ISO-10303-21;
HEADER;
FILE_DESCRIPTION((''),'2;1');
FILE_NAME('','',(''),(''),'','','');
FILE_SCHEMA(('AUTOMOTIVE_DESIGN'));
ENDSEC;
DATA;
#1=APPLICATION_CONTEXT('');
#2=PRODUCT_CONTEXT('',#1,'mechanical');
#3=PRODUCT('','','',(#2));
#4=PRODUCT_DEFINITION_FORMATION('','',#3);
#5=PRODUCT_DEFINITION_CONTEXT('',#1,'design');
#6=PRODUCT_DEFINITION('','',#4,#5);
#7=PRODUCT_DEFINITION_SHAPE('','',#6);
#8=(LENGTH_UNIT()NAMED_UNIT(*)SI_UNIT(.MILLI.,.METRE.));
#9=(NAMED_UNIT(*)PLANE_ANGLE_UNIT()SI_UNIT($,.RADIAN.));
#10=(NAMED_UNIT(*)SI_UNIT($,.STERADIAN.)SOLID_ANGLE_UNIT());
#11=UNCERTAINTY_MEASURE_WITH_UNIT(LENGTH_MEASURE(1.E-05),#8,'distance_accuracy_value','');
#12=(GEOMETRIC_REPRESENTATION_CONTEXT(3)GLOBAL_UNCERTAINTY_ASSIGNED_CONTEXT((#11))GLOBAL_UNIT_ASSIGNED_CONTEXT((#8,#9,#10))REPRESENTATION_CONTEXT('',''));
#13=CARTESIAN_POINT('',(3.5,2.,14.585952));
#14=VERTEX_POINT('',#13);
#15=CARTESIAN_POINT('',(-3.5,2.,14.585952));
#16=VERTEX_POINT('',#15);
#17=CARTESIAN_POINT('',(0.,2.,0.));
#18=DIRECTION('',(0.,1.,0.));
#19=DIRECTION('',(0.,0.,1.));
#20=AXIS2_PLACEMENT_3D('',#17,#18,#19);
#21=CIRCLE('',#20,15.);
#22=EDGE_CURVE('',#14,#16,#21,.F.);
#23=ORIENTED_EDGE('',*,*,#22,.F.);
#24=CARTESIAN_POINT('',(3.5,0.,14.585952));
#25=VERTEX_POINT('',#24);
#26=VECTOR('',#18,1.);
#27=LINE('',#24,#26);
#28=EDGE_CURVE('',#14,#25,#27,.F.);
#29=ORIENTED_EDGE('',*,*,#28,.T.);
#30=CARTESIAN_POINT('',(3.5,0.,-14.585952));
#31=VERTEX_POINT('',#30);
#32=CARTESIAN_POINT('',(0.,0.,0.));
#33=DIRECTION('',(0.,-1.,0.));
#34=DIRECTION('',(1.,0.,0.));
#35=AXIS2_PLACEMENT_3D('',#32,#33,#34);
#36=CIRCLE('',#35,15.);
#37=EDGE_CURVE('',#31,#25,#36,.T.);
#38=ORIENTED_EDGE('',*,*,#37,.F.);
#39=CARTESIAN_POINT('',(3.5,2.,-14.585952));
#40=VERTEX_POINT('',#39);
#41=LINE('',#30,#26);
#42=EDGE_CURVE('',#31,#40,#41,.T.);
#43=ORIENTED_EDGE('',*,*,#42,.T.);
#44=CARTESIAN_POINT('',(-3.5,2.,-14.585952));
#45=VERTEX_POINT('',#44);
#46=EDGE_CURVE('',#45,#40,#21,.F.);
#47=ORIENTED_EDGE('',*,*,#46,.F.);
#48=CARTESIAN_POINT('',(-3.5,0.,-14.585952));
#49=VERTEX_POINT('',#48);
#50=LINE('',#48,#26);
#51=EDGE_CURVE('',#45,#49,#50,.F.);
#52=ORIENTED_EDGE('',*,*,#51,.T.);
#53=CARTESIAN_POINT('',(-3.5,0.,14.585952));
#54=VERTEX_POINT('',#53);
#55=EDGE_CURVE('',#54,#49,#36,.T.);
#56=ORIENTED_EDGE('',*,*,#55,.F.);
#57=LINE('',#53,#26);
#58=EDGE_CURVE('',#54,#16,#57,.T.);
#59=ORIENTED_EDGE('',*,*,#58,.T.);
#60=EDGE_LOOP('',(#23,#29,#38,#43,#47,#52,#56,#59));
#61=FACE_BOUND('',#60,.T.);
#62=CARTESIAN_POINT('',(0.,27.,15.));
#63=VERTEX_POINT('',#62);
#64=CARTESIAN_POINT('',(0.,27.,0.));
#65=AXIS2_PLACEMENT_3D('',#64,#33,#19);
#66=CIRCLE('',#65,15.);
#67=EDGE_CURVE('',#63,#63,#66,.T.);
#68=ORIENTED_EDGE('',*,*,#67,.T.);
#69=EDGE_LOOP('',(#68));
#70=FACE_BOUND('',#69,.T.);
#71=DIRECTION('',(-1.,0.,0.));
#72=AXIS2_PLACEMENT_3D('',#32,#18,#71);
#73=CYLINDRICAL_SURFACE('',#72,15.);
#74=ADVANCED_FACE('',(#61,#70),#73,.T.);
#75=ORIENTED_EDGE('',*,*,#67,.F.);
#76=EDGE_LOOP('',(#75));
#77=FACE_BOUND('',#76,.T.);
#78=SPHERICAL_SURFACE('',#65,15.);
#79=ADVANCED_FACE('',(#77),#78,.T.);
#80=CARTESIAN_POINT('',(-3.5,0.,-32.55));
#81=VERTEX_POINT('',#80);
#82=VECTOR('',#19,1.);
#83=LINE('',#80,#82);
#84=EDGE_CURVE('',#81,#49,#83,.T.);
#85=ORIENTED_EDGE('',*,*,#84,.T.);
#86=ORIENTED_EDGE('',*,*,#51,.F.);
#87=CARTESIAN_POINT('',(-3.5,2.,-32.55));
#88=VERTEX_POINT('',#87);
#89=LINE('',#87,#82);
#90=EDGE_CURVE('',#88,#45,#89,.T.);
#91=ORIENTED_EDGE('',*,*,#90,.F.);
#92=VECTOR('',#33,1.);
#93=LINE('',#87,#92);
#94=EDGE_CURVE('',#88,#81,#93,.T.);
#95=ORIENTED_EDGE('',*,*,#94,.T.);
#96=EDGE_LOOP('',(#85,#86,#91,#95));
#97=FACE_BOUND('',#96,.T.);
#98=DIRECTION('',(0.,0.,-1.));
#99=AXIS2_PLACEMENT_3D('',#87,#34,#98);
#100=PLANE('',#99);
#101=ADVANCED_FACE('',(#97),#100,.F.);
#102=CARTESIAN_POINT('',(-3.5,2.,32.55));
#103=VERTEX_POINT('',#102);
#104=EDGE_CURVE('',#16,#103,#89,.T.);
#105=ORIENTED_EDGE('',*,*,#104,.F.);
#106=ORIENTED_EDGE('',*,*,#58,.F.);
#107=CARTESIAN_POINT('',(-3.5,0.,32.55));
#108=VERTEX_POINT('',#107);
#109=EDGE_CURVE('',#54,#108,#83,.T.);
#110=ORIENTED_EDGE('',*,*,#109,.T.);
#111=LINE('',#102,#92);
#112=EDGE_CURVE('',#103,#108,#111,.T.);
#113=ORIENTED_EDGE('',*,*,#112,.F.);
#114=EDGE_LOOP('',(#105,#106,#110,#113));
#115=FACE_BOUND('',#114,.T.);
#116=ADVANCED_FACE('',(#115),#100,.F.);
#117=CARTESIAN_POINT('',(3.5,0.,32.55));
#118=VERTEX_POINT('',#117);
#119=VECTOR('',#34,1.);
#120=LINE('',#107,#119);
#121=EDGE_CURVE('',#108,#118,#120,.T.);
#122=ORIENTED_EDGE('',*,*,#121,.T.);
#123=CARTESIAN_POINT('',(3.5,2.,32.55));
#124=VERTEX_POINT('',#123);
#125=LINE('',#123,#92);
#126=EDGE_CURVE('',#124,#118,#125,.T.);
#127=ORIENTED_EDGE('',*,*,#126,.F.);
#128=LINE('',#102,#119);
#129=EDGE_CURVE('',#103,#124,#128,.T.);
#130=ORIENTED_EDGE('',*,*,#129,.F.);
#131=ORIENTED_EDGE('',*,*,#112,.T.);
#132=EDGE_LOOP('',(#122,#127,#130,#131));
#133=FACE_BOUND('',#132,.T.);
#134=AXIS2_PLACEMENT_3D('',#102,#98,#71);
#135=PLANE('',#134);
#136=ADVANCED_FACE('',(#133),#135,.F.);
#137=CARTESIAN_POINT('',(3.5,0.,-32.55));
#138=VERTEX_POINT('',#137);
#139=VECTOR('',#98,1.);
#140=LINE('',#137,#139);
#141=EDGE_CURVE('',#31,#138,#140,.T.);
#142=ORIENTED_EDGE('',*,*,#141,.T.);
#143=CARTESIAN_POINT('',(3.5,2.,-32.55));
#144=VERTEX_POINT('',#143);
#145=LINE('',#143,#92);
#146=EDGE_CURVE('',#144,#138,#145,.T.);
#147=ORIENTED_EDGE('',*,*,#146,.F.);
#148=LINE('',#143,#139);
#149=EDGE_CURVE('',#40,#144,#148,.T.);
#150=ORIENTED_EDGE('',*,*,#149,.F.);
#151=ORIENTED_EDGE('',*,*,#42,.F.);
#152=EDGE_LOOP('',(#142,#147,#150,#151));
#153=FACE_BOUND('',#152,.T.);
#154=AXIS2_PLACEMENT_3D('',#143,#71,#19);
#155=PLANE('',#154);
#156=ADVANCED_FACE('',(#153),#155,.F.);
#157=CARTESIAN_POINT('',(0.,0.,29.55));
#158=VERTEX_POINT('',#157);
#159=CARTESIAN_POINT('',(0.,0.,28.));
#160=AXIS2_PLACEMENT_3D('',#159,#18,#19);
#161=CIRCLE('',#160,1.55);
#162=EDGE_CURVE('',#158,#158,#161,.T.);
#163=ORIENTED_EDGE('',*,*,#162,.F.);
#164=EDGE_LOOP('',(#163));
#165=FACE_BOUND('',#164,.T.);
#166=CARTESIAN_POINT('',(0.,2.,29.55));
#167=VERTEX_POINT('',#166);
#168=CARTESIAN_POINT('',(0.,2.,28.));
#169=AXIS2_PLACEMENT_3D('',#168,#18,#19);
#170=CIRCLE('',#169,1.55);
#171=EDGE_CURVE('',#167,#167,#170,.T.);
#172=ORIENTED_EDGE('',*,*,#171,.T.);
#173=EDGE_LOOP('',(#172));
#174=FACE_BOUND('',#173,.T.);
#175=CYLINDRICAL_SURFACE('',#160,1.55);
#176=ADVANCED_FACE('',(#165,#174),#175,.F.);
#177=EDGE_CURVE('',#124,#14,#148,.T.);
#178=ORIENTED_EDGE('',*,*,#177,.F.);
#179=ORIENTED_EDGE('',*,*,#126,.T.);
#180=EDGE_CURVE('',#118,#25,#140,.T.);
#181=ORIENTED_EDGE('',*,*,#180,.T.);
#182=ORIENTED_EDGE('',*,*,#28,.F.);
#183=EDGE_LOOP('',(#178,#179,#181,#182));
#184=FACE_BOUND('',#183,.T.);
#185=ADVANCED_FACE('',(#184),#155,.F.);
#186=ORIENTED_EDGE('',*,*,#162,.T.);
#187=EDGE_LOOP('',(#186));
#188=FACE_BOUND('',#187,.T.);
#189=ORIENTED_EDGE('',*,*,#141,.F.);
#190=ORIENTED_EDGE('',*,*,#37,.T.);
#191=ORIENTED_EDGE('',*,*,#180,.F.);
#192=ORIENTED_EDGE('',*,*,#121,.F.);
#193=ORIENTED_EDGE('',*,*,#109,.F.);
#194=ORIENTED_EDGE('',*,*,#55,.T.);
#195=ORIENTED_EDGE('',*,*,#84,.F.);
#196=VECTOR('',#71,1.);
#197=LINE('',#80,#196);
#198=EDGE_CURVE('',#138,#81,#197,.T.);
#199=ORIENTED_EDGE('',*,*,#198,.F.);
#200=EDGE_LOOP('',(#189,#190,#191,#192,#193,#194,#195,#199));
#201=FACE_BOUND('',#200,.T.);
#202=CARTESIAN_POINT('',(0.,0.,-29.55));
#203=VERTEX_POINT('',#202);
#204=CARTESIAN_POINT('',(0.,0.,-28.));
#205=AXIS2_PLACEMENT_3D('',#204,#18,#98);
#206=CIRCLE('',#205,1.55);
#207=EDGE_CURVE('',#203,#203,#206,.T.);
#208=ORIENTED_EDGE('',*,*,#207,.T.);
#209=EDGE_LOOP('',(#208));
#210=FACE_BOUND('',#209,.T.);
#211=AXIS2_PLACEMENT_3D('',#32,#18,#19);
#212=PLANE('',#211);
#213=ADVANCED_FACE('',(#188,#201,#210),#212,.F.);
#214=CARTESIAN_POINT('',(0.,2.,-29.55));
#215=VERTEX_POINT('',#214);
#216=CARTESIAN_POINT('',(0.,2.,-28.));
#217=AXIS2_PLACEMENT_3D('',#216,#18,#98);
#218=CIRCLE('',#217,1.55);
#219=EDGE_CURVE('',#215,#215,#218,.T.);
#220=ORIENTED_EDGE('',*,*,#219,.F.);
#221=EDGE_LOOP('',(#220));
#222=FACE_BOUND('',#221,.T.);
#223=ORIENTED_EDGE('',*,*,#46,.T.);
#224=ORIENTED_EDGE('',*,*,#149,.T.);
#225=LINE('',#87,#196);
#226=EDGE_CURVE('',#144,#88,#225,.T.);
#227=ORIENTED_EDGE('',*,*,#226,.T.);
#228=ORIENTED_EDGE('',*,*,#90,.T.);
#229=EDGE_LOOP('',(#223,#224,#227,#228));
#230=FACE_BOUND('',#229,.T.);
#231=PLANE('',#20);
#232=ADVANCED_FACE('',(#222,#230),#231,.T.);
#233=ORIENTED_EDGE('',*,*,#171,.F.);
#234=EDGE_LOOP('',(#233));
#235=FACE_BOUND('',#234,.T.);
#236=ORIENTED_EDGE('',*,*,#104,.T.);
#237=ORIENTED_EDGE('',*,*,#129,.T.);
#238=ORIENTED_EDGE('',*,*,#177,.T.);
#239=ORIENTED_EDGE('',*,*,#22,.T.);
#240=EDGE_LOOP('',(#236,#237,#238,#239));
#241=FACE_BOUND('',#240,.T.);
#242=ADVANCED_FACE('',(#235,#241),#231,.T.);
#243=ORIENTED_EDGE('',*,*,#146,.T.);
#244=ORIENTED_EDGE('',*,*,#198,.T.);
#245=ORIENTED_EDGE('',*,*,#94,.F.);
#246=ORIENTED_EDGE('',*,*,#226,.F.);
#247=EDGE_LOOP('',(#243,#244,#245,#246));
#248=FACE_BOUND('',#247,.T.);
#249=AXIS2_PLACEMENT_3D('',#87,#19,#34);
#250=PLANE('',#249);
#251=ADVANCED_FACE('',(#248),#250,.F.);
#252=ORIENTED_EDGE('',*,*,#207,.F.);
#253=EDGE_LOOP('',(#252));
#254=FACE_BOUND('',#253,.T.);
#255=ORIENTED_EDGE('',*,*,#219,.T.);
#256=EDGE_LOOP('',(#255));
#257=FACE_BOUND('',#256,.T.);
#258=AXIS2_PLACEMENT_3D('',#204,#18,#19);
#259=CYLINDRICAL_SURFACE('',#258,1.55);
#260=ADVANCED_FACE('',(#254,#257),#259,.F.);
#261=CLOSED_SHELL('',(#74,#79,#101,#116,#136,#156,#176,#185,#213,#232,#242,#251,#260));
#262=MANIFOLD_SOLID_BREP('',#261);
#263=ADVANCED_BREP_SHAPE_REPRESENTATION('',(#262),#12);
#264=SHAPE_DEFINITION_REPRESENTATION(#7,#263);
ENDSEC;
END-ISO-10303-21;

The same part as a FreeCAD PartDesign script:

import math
import FreeCAD as App
import Part
import Sketcher
Q = App.Units.Quantity

doc = App.newDocument("Part")
params = doc.addObject("Spreadsheet::Sheet", "Params")
for row, (alias, value) in enumerate([
    ("sketch1_width", "7 mm"),
    ("sketch1_height", "65.1 mm"),
    ("pad1_length", "2 mm"),
    ("sketch2_radius", "15 mm"),
    ("revolution_angle", "180 deg"),
    ("sketch3_diameter", "30 mm"),
    ("sketch4_diameter", "3.1 mm"),
    ("pocket1_length", "2 mm"),
], start=1):
    params.set(f"A{row}", alias)
    params.set(f"B{row}", "=" + value)
    params.setAlias(f"B{row}", alias)

body = doc.addObject("PartDesign::Body", "Body")

sketch1 = body.newObject("Sketcher::SketchObject", "Sketch")
sketch1.AttachmentSupport = (doc.getObject("XZ_Plane"), [""])
sketch1.MapMode = "FlatFace"
sketch1.addGeometry(Part.LineSegment(App.Vector(-3.5, -32.55, 0), App.Vector(-3.5, 32.55, 0)), False)
sketch1.addGeometry(Part.LineSegment(App.Vector(-3.5, 32.55, 0), App.Vector(3.5, 32.55, 0)), False)
sketch1.addGeometry(Part.LineSegment(App.Vector(3.5, 32.55, 0), App.Vector(3.5, -32.55, 0)), False)
sketch1.addGeometry(Part.LineSegment(App.Vector(3.5, -32.55, 0), App.Vector(-3.5, -32.55, 0)), False)
sketch1.addConstraint(Sketcher.Constraint("Coincident", 0, 2, 1, 1))
sketch1.addConstraint(Sketcher.Constraint("Coincident", 1, 2, 2, 1))
sketch1.addConstraint(Sketcher.Constraint("Coincident", 2, 2, 3, 1))
sketch1.addConstraint(Sketcher.Constraint("Coincident", 3, 2, 0, 1))
sketch1.addConstraint(Sketcher.Constraint("Vertical", 0))
sketch1.addConstraint(Sketcher.Constraint("Horizontal", 1))
sketch1.addConstraint(Sketcher.Constraint("Vertical", 2))
sketch1.addConstraint(Sketcher.Constraint("Horizontal", 3))
sketch1.addConstraint(Sketcher.Constraint("Symmetric", 0, 2, 2, 2, -1, 1))
sketch1.addConstraint(Sketcher.Constraint("DistanceX", 1, 1, 1, 2, Q("7 mm")))
sketch1.addConstraint(Sketcher.Constraint("DistanceY", 0, 1, 0, 2, Q("65.1 mm")))
sketch1.setExpression("Constraints[9]", "Params.sketch1_width")
sketch1.setExpression("Constraints[10]", "Params.sketch1_height")
pad1 = body.newObject("PartDesign::Pad", "Pad")
pad1.Profile = sketch1
pad1.setExpression("Length", "Params.pad1_length")
pad1.Reversed = True
body2 = doc.addObject("PartDesign::Body", "Body001")

sketch2 = body2.newObject("Sketcher::SketchObject", "Sketch001")
sketch2.AttachmentSupport = (doc.getObject("XZ_Plane001"), [""])
sketch2.MapMode = "FlatFace"
sketch2.AttachmentOffset = App.Placement(App.Vector(0, 0, -27), App.Rotation())
sketch2.addGeometry(Part.LineSegment(App.Vector(0, -15, 0), App.Vector(0, 15, 0)), False)
sketch2.addGeometry(Part.ArcOfCircle(Part.Circle(App.Vector(0, 0, 0), App.Vector(0, 0, 1), 15), math.radians(-90), math.radians(90)), False)
sketch2.addConstraint(Sketcher.Constraint("Coincident", 0, 1, 1, 1))
sketch2.addConstraint(Sketcher.Constraint("Coincident", 1, 2, 0, 2))
sketch2.addConstraint(Sketcher.Constraint("Vertical", 0))
sketch2.addConstraint(Sketcher.Constraint("Coincident", 1, 3, -1, 1))
sketch2.addConstraint(Sketcher.Constraint("PointOnObject", 0, 1, -2))
sketch2.addConstraint(Sketcher.Constraint("Radius", 1, Q("15 mm")))
sketch2.setExpression("Constraints[5]", "Params.sketch2_radius")
revolution = body2.newObject("PartDesign::Revolution", "Revolution")
revolution.Profile = sketch2
revolution.ReferenceAxis = (sketch2, ["V_Axis"])
revolution.setExpression("Angle", "Params.revolution_angle")
body.AllowCompound = True
doc.recompute()

boolean = body.newObject("PartDesign::Boolean", "Boolean")
boolean.Type = "Fuse"
boolean.addObjects([body2])

sketch3 = body.newObject("Sketcher::SketchObject", "Sketch002")
sketch3.AttachmentSupport = (doc.getObject("XZ_Plane"), [""])
sketch3.MapMode = "FlatFace"
sketch3.AttachmentOffset = App.Placement(App.Vector(0, 0, -27), App.Rotation())
sketch3.addGeometry(Part.Circle(App.Vector(0, 0, 0), App.Vector(0, 0, 1), 15), False)
sketch3.addConstraint(Sketcher.Constraint("Coincident", 0, 3, -1, 1))
sketch3.addConstraint(Sketcher.Constraint("Diameter", 0, Q("30 mm")))
sketch3.setExpression("Constraints[1]", "Params.sketch3_diameter")
pad2 = body.newObject("PartDesign::Pad", "Pad001")
pad2.Profile = sketch3
pad2.Type = "UpToLast"

sketch4 = body.newObject("Sketcher::SketchObject", "Sketch003")
sketch4.AttachmentSupport = (doc.getObject("XZ_Plane"), [""])
sketch4.MapMode = "FlatFace"
sketch4.AttachmentOffset = App.Placement(App.Vector(0, 0, -2), App.Rotation())
sketch4.addGeometry(Part.Circle(App.Vector(0, 28, 0), App.Vector(0, 0, 1), 1.55), False)
sketch4.addGeometry(Part.Circle(App.Vector(0, -28, 0), App.Vector(0, 0, 1), 1.55), False)
sketch4.addConstraint(Sketcher.Constraint("Equal", 0, 1))
sketch4.addConstraint(Sketcher.Constraint("Symmetric", 0, 3, 1, 3, -1, 1))
sketch4.addConstraint(Sketcher.Constraint("PointOnObject", 0, 3, -2))
sketch4.addConstraint(Sketcher.Constraint("Diameter", 0, Q("3.1 mm")))
sketch4.addConstraint(Sketcher.Constraint("DistanceY", -1, 1, 0, 3, Q("28 mm")))
sketch4.setExpression("Constraints[3]", "Params.sketch4_diameter")
pocket1 = body.newObject("PartDesign::Pocket", "Pocket")
pocket1.Profile = sketch4
pocket1.setExpression("Length", "Params.pocket1_length")
pocket1.Reversed = True

doc.recompute()
